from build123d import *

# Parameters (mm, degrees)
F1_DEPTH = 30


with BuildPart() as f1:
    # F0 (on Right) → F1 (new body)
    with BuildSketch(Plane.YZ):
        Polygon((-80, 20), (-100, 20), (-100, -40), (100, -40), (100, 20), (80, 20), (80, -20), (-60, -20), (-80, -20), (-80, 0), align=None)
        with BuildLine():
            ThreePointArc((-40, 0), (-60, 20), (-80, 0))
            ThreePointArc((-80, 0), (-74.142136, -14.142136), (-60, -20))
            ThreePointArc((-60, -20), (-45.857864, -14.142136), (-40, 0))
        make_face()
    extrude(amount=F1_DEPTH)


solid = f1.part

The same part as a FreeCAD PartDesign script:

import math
import FreeCAD as App
import Part
import Sketcher

V = App.Vector
Q = App.Units.Quantity

doc = App.newDocument("Part")
body = doc.addObject("PartDesign::Body", "Body")
body.AllowCompound = True

sketch1 = body.newObject("Sketcher::SketchObject", "Sketch")
sketch1.AttachmentSupport = (doc.getObject("YZ_Plane"), [""])
sketch1.MapMode = "FlatFace"
sketch1.addGeometry([
    Part.LineSegment(V(-80, 20, 0), V(-100, 20, 0)),
    Part.LineSegment(V(-100, 20, 0), V(-100, -40, 0)),
    Part.LineSegment(V(-100, -40, 0), V(100, -40, 0)),
    Part.LineSegment(V(100, -40, 0), V(100, 20, 0)),
    Part.LineSegment(V(100, 20, 0), V(80, 20, 0)),
    Part.LineSegment(V(80, 20, 0), V(80, -20, 0)),
    Part.LineSegment(V(80, -20, 0), V(-60, -20, 0)),
    Part.LineSegment(V(-60, -20, 0), V(-80, -20, 0)),
    Part.LineSegment(V(-80, -20, 0), V(-80, 0, 0)),
    Part.LineSegment(V(-80, 0, 0), V(-80, 20, 0)),
    Part.ArcOfCircle(Part.Circle(V(-60, 0, 0), V(0, 0, 1), 20), math.radians(0), math.radians(180)),
    Part.ArcOfCircle(Part.Circle(V(-60, 0, 0), V(0, 0, 1), 20), math.radians(180), math.radians(270)),
    Part.ArcOfCircle(Part.Circle(V(-60, 0, 0), V(0, 0, 1), 20), math.radians(-90), math.radians(0)),
], False)
sketch1.addConstraint([
    Sketcher.Constraint("Coincident", 0, 2, 1, 1),
    Sketcher.Constraint("Coincident", 1, 2, 2, 1),
    Sketcher.Constraint("Coincident", 2, 2, 3, 1),
    Sketcher.Constraint("Coincident", 3, 2, 4, 1),
    Sketcher.Constraint("Coincident", 4, 2, 5, 1),
    Sketcher.Constraint("Coincident", 5, 2, 6, 1),
    Sketcher.Constraint("Coincident", 6, 2, 7, 1),
    Sketcher.Constraint("Coincident", 7, 2, 8, 1),
    Sketcher.Constraint("Coincident", 8, 2, 9, 1),
    Sketcher.Constraint("Coincident", 9, 2, 0, 1),
    Sketcher.Constraint("Tangent", 10, 2, 11, 1),
    Sketcher.Constraint("Tangent", 11, 2, 12, 1),
    Sketcher.Constraint("Tangent", 12, 2, 10, 1),
    Sketcher.Constraint("Horizontal", 0),
    Sketcher.Constraint("Vertical", 1),
    Sketcher.Constraint("Horizontal", 2),
    Sketcher.Constraint("Vertical", 3),
    Sketcher.Constraint("Horizontal", 4),
    Sketcher.Constraint("Vertical", 5),
    Sketcher.Constraint("Horizontal", 6),
    Sketcher.Constraint("Horizontal", 7),
    Sketcher.Constraint("Vertical", 8),
    Sketcher.Constraint("Vertical", 9),
    Sketcher.Constraint("Coincident", 10, 2, 8, 2),
    Sketcher.Constraint("Coincident", 11, 2, 6, 2),
    Sketcher.Constraint("Symmetric", 4, 2, 7, 2, -1, 1),
    Sketcher.Constraint("Symmetric", 0, 2, 3, 2, -2),
    Sketcher.Constraint("PointOnObject", 10, 3, -1),
    Sketcher.Constraint("PointOnObject", 8, 2, -1),
    Sketcher.Constraint("PointOnObject", 12, 2, -1),
    Sketcher.Constraint("Vertical", 12, 3, 6, 2),
    Sketcher.Constraint("Equal", 4, 7),
    Sketcher.Constraint("Radius", 10, Q("20 mm")),
    Sketcher.Constraint("DistanceX", 2, 1, 2, 2, Q("200 mm")),
    Sketcher.Constraint("DistanceY", 1, 2, 1, 1, Q("60 mm")),
])
pad1 = body.newObject("PartDesign::Pad", "Pad")
pad1.Profile = sketch1
pad1.Length = 30

doc.recompute()
